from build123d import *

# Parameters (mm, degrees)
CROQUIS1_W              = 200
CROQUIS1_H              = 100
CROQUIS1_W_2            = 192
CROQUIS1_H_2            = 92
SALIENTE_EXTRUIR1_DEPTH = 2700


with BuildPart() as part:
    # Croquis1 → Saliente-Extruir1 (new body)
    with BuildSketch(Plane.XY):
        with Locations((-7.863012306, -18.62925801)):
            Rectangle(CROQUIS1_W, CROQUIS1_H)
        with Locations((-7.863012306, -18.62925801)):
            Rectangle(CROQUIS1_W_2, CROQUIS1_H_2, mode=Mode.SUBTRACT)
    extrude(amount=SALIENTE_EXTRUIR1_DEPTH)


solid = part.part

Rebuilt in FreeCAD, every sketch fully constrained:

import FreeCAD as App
import Part
import Sketcher
from FreeCAD import Vector

doc = App.newDocument("Part")
body = doc.addObject("PartDesign::Body", "Body")

sketch1 = body.newObject("Sketcher::SketchObject", "Sketch")
sketch1.AttachmentSupport = (doc.getObject("XY_Plane"), [""])
sketch1.MapMode = "FlatFace"
sketch1.addGeometry([
    Part.LineSegment(Vector(-108, 31, 0), Vector(-108, -69, 0)),
    Part.LineSegment(Vector(-108, -69, 0), Vector(92, -69, 0)),
    Part.LineSegment(Vector(92, -69, 0), Vector(92, 31, 0)),
    Part.LineSegment(Vector(92, 31, 0), Vector(-108, 31, 0)),
    Part.LineSegment(Vector(88, -65, 0), Vector(-104, -65, 0)),
    Part.LineSegment(Vector(-104, -65, 0), Vector(-104, 27, 0)),
    Part.LineSegment(Vector(-104, 27, 0), Vector(88, 27, 0)),
    Part.LineSegment(Vector(88, 27, 0), Vector(88, -65, 0)),
], False)
sketch1.addConstraint([
    Sketcher.Constraint("Coincident", 0, 2, 1, 1),
    Sketcher.Constraint("Coincident", 1, 2, 2, 1),
    Sketcher.Constraint("Coincident", 2, 2, 3, 1),
    Sketcher.Constraint("Coincident", 3, 2, 0, 1),
    Sketcher.Constraint("Coincident", 4, 2, 5, 1),
    Sketcher.Constraint("Coincident", 5, 2, 6, 1),
    Sketcher.Constraint("Coincident", 6, 2, 7, 1),
    Sketcher.Constraint("Coincident", 7, 2, 4, 1),
    Sketcher.Constraint("Vertical", 0),
    Sketcher.Constraint("Horizontal", 1),
    Sketcher.Constraint("Vertical", 2),
    Sketcher.Constraint("Horizontal", 3),
    Sketcher.Constraint("Horizontal", 4),
    Sketcher.Constraint("Vertical", 5),
    Sketcher.Constraint("Horizontal", 6),
    Sketcher.Constraint("Vertical", 7),
    Sketcher.Constraint("DistanceX", 1, 1, 1, 2, 200.0),
    Sketcher.Constraint("DistanceX", 4, 2, 4, 1, 192.0),
    Sketcher.Constraint("DistanceY", 0, 2, 0, 1, 100.0),
    Sketcher.Constraint("DistanceY", 5, 1, 5, 2, 92.0),
    Sketcher.Constraint("DistanceX", 0, 2, 4, 2, 4.0),
    Sketcher.Constraint("DistanceY", 0, 2, 4, 2, 4.0),
    Sketcher.Constraint("DistanceY", 0, 2, -1, 1, 68.629258),
    Sketcher.Constraint("DistanceX", 0, 2, -1, 1, 107.863012),
])
pad1 = body.newObject("PartDesign::Pad", "Pad")
pad1.Profile = sketch1
pad1.Length = 2700

doc.recompute()
